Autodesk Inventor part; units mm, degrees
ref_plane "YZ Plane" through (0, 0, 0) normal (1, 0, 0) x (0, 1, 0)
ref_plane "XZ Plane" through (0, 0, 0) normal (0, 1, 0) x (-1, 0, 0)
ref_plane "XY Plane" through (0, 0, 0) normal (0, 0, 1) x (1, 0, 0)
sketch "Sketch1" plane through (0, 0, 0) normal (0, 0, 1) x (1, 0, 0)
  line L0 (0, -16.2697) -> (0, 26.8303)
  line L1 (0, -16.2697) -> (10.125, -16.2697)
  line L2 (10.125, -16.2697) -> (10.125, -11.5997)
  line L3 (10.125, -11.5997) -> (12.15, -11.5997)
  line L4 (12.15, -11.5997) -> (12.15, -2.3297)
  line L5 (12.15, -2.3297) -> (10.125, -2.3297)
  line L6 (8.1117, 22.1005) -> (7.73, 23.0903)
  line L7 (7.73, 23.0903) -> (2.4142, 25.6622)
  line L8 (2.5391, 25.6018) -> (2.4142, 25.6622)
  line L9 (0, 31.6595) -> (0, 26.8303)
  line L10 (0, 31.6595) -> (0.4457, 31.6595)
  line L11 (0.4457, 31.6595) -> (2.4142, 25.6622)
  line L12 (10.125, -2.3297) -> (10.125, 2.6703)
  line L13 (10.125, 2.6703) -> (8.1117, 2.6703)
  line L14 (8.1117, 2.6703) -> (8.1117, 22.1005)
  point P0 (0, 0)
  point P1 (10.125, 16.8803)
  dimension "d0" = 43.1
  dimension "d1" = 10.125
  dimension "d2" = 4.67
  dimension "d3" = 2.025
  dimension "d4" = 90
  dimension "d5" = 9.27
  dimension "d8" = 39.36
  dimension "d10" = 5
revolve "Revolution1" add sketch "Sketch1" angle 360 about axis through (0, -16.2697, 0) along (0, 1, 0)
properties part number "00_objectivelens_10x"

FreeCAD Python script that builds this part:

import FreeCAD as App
import Part
import Sketcher

V = App.Vector
Q = App.Units.Quantity

doc = App.newDocument("Part")
body = doc.addObject("PartDesign::Body", "Body")

sketch1 = body.newObject("Sketcher::SketchObject", "Sketch")
sketch1.AttachmentSupport = (doc.getObject("XY_Plane"), [""])
sketch1.MapMode = "FlatFace"
sketch1.addGeometry([
    Part.LineSegment(V(0, 31.6595, 0), V(0, -16.2697, 0)),
    Part.LineSegment(V(0, -16.2697, 0), V(10.125, -16.2697, 0)),
    Part.LineSegment(V(10.125, -16.2697, 0), V(10.125, -11.5997, 0)),
    Part.LineSegment(V(10.125, -11.5997, 0), V(12.15, -11.5997, 0)),
    Part.LineSegment(V(12.15, -11.5997, 0), V(12.15, -2.3297, 0)),
    Part.LineSegment(V(12.15, -2.3297, 0), V(10.125, -2.3297, 0)),
    Part.LineSegment(V(10.125, -2.3297, 0), V(10.125, 2.6703, 0)),
    Part.LineSegment(V(10.125, 2.6703, 0), V(8.1117, 2.6703, 0)),
    Part.LineSegment(V(8.1117, 2.6703, 0), V(8.1117, 22.1005, 0)),
    Part.LineSegment(V(8.1117, 22.1005, 0), V(7.73, 23.0903, 0)),
    Part.LineSegment(V(7.73, 23.0903, 0), V(2.4142, 25.6622, 0)),
    Part.LineSegment(V(2.4142, 25.6622, 0), V(0.4457, 31.6595, 0)),
    Part.LineSegment(V(0.4457, 31.6595, 0), V(0, 31.6595, 0)),
], False)
sketch1.addConstraint([
    Sketcher.Constraint("Coincident", 0, 2, 1, 1),
    Sketcher.Constraint("Coincident", 1, 2, 2, 1),
    Sketcher.Constraint("Coincident", 2, 2, 3, 1),
    Sketcher.Constraint("Coincident", 3, 2, 4, 1),
    Sketcher.Constraint("Coincident", 4, 2, 5, 1),
    Sketcher.Constraint("Coincident", 5, 2, 6, 1),
    Sketcher.Constraint("Coincident", 6, 2, 7, 1),
    Sketcher.Constraint("Coincident", 7, 2, 8, 1),
    Sketcher.Constraint("Coincident", 8, 2, 9, 1),
    Sketcher.Constraint("Coincident", 9, 2, 10, 1),
    Sketcher.Constraint("Coincident", 10, 2, 11, 1),
    Sketcher.Constraint("Coincident", 11, 2, 12, 1),
    Sketcher.Constraint("Coincident", 12, 2, 0, 1),
    Sketcher.Constraint("Vertical", 0),
    Sketcher.Constraint("Horizontal", 1),
    Sketcher.Constraint("Vertical", 2),
    Sketcher.Constraint("Horizontal", 3),
    Sketcher.Constraint("Vertical", 4),
    Sketcher.Constraint("Horizontal", 5),
    Sketcher.Constraint("Vertical", 6),
    Sketcher.Constraint("Horizontal", 7),
    Sketcher.Constraint("Vertical", 8),
    Sketcher.Constraint("Horizontal", 12),
    Sketcher.Constraint("PointOnObject", 0, 2, -2),
    Sketcher.Constraint("Vertical", 2, 2, 5, 2),
    Sketcher.Constraint("DistanceY", 6, 1, 6, 2, Q("5 mm")),
    Sketcher.Constraint("DistanceY", 2, 1, 2, 2, Q("4.67 mm")),
    Sketcher.Constraint("DistanceY", 4, 1, 4, 2, Q("9.27 mm")),
    Sketcher.Constraint("DistanceX", 1, 1, 1, 2, Q("10.125 mm")),
    Sketcher.Constraint("DistanceX", 3, 1, 3, 2, Q("2.025 mm")),
    Sketcher.Constraint("DistanceX", -1, 1, 9, 2, Q("7.73 mm")),
    Sketcher.Constraint("DistanceY", 7, 2, 9, 2, Q("20.42 mm")),
    Sketcher.Constraint("Distance", 11, Q("6.312 mm")),
    Sketcher.Constraint("DistanceX", 7, 2, 7, 1, Q("2.0133 mm")),
    Sketcher.Constraint("DistanceX", 12, 2, 12, 1, Q("0.4457 mm")),
    Sketcher.Constraint("DistanceY", 0, 2, 0, 1, Q("47.9292 mm")),
    Sketcher.Constraint("DistanceY", 8, 1, 8, 2, Q("19.4302 mm")),
    Sketcher.Constraint("DistanceY", 9, 2, 10, 2, Q("2.572 mm")),
    Sketcher.Constraint("DistanceY", 0, 2, -1, 1, Q("16.2697 mm")),
])
revolution = body.newObject("PartDesign::Revolution", "Revolution")
revolution.Profile = sketch1
revolution.ReferenceAxis = (sketch1, ["V_Axis"])
revolution.Angle = 360

doc.recompute()
